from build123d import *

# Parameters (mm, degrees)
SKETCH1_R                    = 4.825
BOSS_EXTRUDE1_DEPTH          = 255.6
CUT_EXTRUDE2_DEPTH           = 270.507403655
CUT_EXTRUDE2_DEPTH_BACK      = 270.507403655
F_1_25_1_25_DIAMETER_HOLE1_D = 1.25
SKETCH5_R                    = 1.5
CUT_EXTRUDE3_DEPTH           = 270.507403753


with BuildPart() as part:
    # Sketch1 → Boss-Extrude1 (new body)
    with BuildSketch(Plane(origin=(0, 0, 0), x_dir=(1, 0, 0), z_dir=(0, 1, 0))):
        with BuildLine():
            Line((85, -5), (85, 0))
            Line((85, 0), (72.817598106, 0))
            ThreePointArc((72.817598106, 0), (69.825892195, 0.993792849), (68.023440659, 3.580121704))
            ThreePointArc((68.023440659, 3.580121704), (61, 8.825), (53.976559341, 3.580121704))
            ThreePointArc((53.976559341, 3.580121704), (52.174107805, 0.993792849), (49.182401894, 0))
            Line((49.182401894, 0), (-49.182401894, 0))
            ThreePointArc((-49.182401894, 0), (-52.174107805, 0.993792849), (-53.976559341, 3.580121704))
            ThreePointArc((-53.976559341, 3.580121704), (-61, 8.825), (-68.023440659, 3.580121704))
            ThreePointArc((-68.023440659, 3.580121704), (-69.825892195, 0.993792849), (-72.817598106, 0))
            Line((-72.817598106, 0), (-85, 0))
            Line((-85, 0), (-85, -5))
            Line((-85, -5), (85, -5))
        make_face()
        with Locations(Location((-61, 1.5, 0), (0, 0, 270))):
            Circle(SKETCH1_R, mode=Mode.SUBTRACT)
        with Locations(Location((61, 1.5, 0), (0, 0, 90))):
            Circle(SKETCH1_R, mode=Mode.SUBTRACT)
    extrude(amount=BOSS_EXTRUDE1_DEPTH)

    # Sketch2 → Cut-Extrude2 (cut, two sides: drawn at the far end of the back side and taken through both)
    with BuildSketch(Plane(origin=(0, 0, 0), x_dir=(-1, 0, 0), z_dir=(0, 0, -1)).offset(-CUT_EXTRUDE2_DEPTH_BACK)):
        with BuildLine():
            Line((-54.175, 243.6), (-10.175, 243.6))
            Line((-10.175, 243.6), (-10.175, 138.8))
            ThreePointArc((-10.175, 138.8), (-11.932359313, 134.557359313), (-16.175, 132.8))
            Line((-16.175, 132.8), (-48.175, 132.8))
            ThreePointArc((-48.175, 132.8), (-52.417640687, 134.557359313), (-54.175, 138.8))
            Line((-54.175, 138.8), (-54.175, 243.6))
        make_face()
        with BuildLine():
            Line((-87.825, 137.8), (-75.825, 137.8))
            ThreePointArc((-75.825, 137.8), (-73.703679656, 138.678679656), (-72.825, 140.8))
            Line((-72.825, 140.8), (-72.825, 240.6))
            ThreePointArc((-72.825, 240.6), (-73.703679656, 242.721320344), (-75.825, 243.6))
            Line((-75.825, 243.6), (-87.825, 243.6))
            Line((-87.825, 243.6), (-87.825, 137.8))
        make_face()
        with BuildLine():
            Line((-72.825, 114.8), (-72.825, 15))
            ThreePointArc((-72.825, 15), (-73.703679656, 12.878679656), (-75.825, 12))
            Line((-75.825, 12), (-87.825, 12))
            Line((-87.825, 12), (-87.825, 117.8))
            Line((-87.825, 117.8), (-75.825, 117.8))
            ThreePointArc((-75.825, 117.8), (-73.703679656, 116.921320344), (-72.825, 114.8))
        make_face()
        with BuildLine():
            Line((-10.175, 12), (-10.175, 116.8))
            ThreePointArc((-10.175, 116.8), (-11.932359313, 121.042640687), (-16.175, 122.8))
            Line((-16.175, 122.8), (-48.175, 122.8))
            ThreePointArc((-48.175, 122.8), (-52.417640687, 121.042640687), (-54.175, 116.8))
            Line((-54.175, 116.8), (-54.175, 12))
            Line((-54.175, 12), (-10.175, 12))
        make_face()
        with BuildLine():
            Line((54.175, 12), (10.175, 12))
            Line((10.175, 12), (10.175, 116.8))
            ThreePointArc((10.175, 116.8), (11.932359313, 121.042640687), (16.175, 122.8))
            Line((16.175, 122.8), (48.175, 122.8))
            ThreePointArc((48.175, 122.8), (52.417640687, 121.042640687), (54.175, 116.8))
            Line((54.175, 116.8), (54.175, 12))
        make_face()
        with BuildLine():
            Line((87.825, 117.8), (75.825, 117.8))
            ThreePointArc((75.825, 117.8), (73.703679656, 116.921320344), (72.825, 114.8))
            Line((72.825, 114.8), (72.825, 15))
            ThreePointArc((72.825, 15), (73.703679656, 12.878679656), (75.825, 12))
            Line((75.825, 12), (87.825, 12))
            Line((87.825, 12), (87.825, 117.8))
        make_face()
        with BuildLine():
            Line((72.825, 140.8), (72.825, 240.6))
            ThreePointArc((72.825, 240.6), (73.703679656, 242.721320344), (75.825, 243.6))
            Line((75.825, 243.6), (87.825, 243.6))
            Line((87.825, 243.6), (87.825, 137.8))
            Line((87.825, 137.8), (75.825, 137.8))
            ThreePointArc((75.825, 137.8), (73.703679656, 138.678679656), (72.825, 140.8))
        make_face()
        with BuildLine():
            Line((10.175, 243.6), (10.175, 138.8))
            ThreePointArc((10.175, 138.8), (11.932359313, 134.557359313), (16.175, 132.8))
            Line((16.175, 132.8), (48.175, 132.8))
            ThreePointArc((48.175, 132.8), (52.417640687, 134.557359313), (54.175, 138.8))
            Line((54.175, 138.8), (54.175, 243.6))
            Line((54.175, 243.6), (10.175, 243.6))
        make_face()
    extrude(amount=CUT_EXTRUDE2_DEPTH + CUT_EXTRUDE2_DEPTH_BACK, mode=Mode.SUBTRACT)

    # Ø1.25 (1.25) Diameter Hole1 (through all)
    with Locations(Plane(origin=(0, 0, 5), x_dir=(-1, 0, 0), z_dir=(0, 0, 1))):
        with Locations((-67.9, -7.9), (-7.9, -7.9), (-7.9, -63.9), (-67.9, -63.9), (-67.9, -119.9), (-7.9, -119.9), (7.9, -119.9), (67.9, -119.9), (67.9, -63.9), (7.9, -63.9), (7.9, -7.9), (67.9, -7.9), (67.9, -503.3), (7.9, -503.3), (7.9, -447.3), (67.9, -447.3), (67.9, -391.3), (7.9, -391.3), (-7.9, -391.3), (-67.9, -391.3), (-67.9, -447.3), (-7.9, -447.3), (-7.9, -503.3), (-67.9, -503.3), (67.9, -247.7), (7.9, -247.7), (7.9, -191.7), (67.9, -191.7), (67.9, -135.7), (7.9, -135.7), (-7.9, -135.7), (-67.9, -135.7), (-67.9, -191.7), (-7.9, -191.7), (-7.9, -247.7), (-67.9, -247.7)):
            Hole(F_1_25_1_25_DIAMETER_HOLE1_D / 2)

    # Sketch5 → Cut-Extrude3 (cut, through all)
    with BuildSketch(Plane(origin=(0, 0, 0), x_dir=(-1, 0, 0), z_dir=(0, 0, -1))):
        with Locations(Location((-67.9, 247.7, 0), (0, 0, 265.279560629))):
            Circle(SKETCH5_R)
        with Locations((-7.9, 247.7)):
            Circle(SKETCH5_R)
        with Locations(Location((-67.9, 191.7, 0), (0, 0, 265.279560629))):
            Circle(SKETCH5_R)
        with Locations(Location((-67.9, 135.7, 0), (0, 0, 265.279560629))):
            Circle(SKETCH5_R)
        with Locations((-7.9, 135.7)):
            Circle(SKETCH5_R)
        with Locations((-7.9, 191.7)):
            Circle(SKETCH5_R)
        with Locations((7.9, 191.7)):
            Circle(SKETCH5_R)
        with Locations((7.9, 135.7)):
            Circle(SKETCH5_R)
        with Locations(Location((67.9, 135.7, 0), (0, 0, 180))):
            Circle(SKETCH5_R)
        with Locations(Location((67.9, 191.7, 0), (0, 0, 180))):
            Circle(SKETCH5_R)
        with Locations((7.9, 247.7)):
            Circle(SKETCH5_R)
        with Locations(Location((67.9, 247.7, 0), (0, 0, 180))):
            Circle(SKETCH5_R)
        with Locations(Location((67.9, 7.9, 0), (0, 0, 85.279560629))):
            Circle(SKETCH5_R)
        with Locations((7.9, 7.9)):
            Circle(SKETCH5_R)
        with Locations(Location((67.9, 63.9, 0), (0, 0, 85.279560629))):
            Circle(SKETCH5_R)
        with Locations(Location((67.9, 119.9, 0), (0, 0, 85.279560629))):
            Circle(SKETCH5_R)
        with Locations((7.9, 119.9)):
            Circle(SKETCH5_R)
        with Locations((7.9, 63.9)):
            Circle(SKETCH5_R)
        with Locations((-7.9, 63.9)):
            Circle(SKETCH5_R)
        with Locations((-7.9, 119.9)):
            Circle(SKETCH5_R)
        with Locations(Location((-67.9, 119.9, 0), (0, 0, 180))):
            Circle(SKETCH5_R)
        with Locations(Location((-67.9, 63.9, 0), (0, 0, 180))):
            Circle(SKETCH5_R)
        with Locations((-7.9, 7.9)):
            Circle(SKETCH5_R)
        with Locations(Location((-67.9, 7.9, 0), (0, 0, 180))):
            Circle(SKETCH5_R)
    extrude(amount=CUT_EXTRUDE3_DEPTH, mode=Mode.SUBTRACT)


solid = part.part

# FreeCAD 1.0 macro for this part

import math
import FreeCAD as App
import Part
import Sketcher

V = App.Vector

doc = App.newDocument("Part")
body = doc.addObject("PartDesign::Body", "Body")

# Sketch on XZ plane
sketch1 = doc.addObject("Sketcher::SketchObject", "Sketch")
body.addObject(sketch1)
sketch1.AttachmentSupport = (doc.XZ_Plane, [""])
sketch1.MapMode = "FlatFace"
sketch1.addGeometry(Part.LineSegment(V(85, 5, 0), V(85, 0, 0)), False)
sketch1.addGeometry(Part.LineSegment(V(85, 0, 0), V(72.8, 0, 0)), False)
sketch1.addGeometry(Part.ArcOfCircle(Part.Circle(V(72.8, -5, 0), V(0, 0, 1), 5), math.radians(90), math.radians(164)), False)
sketch1.addGeometry(Part.ArcOfCircle(Part.Circle(V(61, -1.5, 0), V(0, 0, 1), 7.3), math.radians(-164), math.radians(-16)), False)
sketch1.addGeometry(Part.ArcOfCircle(Part.Circle(V(49.2, -5, 0), V(0, 0, 1), 5), math.radians(16), math.radians(90)), False)
sketch1.addGeometry(Part.LineSegment(V(49.2, 0, 0), V(-49.2, 0, 0)), False)
sketch1.addGeometry(Part.ArcOfCircle(Part.Circle(V(-49.2, -5, 0), V(0, 0, 1), 5), math.radians(90), math.radians(164)), False)
sketch1.addGeometry(Part.ArcOfCircle(Part.Circle(V(-61, -1.5, 0), V(0, 0, 1), 7.3), math.radians(-164), math.radians(-16)), False)
sketch1.addGeometry(Part.ArcOfCircle(Part.Circle(V(-72.8, -5, 0), V(0, 0, 1), 5), math.radians(16), math.radians(90)), False)
sketch1.addGeometry(Part.LineSegment(V(-72.8, 0, 0), V(-85, 0, 0)), False)
sketch1.addGeometry(Part.LineSegment(V(-85, 0, 0), V(-85, 5, 0)), False)
sketch1.addGeometry(Part.LineSegment(V(-85, 5, 0), V(85, 5, 0)), False)
sketch1.addGeometry(Part.Circle(V(-61, -1.5, 0), V(0, 0, 1), 4.8), False)
sketch1.addGeometry(Part.Circle(V(61, -1.5, 0), V(0, 0, 1), 4.8), False)
sketch1.addConstraint(Sketcher.Constraint("Coincident", 0, 2, 1, 1))
sketch1.addConstraint(Sketcher.Constraint("Tangent", 1, 2, 2, 1))
sketch1.addConstraint(Sketcher.Constraint("Tangent", 2, 2, 3, 2))
sketch1.addConstraint(Sketcher.Constraint("Tangent", 3, 1, 4, 1))
sketch1.addConstraint(Sketcher.Constraint("Tangent", 4, 2, 5, 1))
sketch1.addConstraint(Sketcher.Constraint("Tangent", 5, 2, 6, 1))
sketch1.addConstraint(Sketcher.Constraint("Tangent", 6, 2, 7, 2))
sketch1.addConstraint(Sketcher.Constraint("Tangent", 7, 1, 8, 1))
sketch1.addConstraint(Sketcher.Constraint("Tangent", 8, 2, 9, 1))
sketch1.addConstraint(Sketcher.Constraint("Coincident", 9, 2, 10, 1))
sketch1.addConstraint(Sketcher.Constraint("Coincident", 10, 2, 11, 1))
sketch1.addConstraint(Sketcher.Constraint("Coincident", 11, 2, 0, 1))
sketch1.addConstraint(Sketcher.Constraint("Vertical", 0))
sketch1.addConstraint(Sketcher.Constraint("Horizontal", 1))
sketch1.addConstraint(Sketcher.Constraint("Horizontal", 5))
sketch1.addConstraint(Sketcher.Constraint("Horizontal", 9))
sketch1.addConstraint(Sketcher.Constraint("Vertical", 10))
sketch1.addConstraint(Sketcher.Constraint("Horizontal", 11))
sketch1.addConstraint(Sketcher.Constraint("Coincident", 12, 3, 7, 3))
sketch1.addConstraint(Sketcher.Constraint("Coincident", 13, 3, 3, 3))
sketch1.addConstraint(Sketcher.Constraint("Equal", 2, 4))
sketch1.addConstraint(Sketcher.Constraint("Equal", 4, 6))
sketch1.addConstraint(Sketcher.Constraint("Equal", 3, 7))
sketch1.addConstraint(Sketcher.Constraint("Equal", 6, 8))
sketch1.addConstraint(Sketcher.Constraint("Equal", 12, 13))
sketch1.addConstraint(Sketcher.Constraint("Symmetric", 4, 2, 5, 2, -1, 1))
sketch1.addConstraint(Sketcher.Constraint("Symmetric", 1, 2, 8, 2, -1, 1))
sketch1.addConstraint(Sketcher.Constraint("Symmetric", 0, 2, 9, 2, -2))
sketch1.addConstraint(Sketcher.Constraint("Radius", 2, 5.0))
sketch1.addConstraint(Sketcher.Constraint("Diameter", 12, 9.65))
sketch1.addConstraint(Sketcher.Constraint("DistanceX", 11, 1, 11, 2, 170.0))
sketch1.addConstraint(Sketcher.Constraint("DistanceY", 0, 2, 0, 1, 5.0))
sketch1.addConstraint(Sketcher.Constraint("DistanceX", -1, 1, 3, 3, 61.0))
sketch1.addConstraint(Sketcher.Constraint("Radius", 3, 7.325))
sketch1.addConstraint(Sketcher.Constraint("DistanceY", 3, 3, -1, 1, 1.5))
pad1 = doc.addObject("PartDesign::Pad", "Pad")
body.addObject(pad1)
pad1.Profile = sketch1
pad1.Length = 255.6
pad1.Reversed = True

# Sketch on XY plane
sketch2 = doc.addObject("Sketcher::SketchObject", "Sketch001")
body.addObject(sketch2)
sketch2.AttachmentSupport = (doc.XY_Plane, [""])
sketch2.MapMode = "FlatFace"
sketch2.addGeometry(Part.LineSegment(V(10.2, 243.6, 0), V(54.2, 243.6, 0)), False)
sketch2.addGeometry(Part.LineSegment(V(54.2, 243.6, 0), V(54.2, 138.8, 0)), False)
sketch2.addGeometry(Part.ArcOfCircle(Part.Circle(V(48.2, 138.8, 0), V(0, 0, 1), 6), math.radians(-90), math.radians(0)), False)
sketch2.addGeometry(Part.LineSegment(V(48.2, 132.8, 0), V(16.2, 132.8, 0)), False)
sketch2.addGeometry(Part.ArcOfCircle(Part.Circle(V(16.2, 138.8, 0), V(0, 0, 1), 6), math.radians(180), math.radians(270)), False)
sketch2.addGeometry(Part.LineSegment(V(10.2, 138.8, 0), V(10.2, 243.6, 0)), False)
sketch2.addGeometry(Part.LineSegment(V(87.8, 137.8, 0), V(75.8, 137.8, 0)), False)
sketch2.addGeometry(Part.ArcOfCircle(Part.Circle(V(75.8, 140.8, 0), V(0, 0, 1), 3), math.radians(180), math.radians(270)), False)
sketch2.addGeometry(Part.LineSegment(V(72.8, 140.8, 0), V(72.8, 240.6, 0)), False)
sketch2.addGeometry(Part.ArcOfCircle(Part.Circle(V(75.8, 240.6, 0), V(0, 0, 1), 3), math.radians(90), math.radians(180)), False)
sketch2.addGeometry(Part.LineSegment(V(75.8, 243.6, 0), V(87.8, 243.6, 0)), False)
sketch2.addGeometry(Part.LineSegment(V(87.8, 243.6, 0), V(87.8, 137.8, 0)), False)
sketch2.addGeometry(Part.LineSegment(V(72.8, 15, 0), V(72.8, 114.8, 0)), False)
sketch2.addGeometry(Part.ArcOfCircle(Part.Circle(V(75.8, 114.8, 0), V(0, 0, 1), 3), math.radians(90), math.radians(180)), False)
sketch2.addGeometry(Part.LineSegment(V(75.8, 117.8, 0), V(87.8, 117.8, 0)), False)
sketch2.addGeometry(Part.LineSegment(V(87.8, 117.8, 0), V(87.8, 12, 0)), False)
sketch2.addGeometry(Part.LineSegment(V(87.8, 12, 0), V(75.8, 12, 0)), False)
sketch2.addGeometry(Part.ArcOfCircle(Part.Circle(V(75.8, 15, 0), V(0, 0, 1), 3), math.radians(180), math.radians(270)), False)
sketch2.addGeometry(Part.LineSegment(V(10.2, 12, 0), V(10.2, 116.8, 0)), False)
sketch2.addGeometry(Part.ArcOfCircle(Part.Circle(V(16.2, 116.8, 0), V(0, 0, 1), 6), math.radians(90), math.radians(180)), False)
sketch2.addGeometry(Part.LineSegment(V(16.2, 122.8, 0), V(48.2, 122.8, 0)), False)
sketch2.addGeometry(Part.ArcOfCircle(Part.Circle(V(48.2, 116.8, 0), V(0, 0, 1), 6), math.radians(0), math.radians(90)), False)
sketch2.addGeometry(Part.LineSegment(V(54.2, 116.8, 0), V(54.2, 12, 0)), False)
sketch2.addGeometry(Part.LineSegment(V(54.2, 12, 0), V(10.2, 12, 0)), False)
sketch2.addGeometry(Part.LineSegment(V(-10.2, 12, 0), V(-54.2, 12, 0)), False)
sketch2.addGeometry(Part.LineSegment(V(-54.2, 12, 0), V(-54.2, 116.8, 0)), False)
sketch2.addGeometry(Part.ArcOfCircle(Part.Circle(V(-48.2, 116.8, 0), V(0, 0, 1), 6), math.radians(90), math.radians(180)), False)
sketch2.addGeometry(Part.LineSegment(V(-48.2, 122.8, 0), V(-16.2, 122.8, 0)), False)
sketch2.addGeometry(Part.ArcOfCircle(Part.Circle(V(-16.2, 116.8, 0), V(0, 0, 1), 6), math.radians(0), math.radians(90)), False)
sketch2.addGeometry(Part.LineSegment(V(-10.2, 116.8, 0), V(-10.2, 12, 0)), False)
sketch2.addGeometry(Part.LineSegment(V(-87.8, 117.8, 0), V(-75.8, 117.8, 0)), False)
sketch2.addGeometry(Part.ArcOfCircle(Part.Circle(V(-75.8, 114.8, 0), V(0, 0, 1), 3), math.radians(0), math.radians(90)), False)
sketch2.addGeometry(Part.LineSegment(V(-72.8, 114.8, 0), V(-72.8, 15, 0)), False)
sketch2.addGeometry(Part.ArcOfCircle(Part.Circle(V(-75.8, 15, 0), V(0, 0, 1), 3), math.radians(-90), math.radians(0)), False)
sketch2.addGeometry(Part.LineSegment(V(-75.8, 12, 0), V(-87.8, 12, 0)), False)
sketch2.addGeometry(Part.LineSegment(V(-87.8, 12, 0), V(-87.8, 117.8, 0)), False)
sketch2.addGeometry(Part.LineSegment(V(-72.8, 240.6, 0), V(-72.8, 140.8, 0)), False)
sketch2.addGeometry(Part.ArcOfCircle(Part.Circle(V(-75.8, 140.8, 0), V(0, 0, 1), 3), math.radians(-90), math.radians(0)), False)
sketch2.addGeometry(Part.LineSegment(V(-75.8, 137.8, 0), V(-87.8, 137.8, 0)), False)
sketch2.addGeometry(Part.LineSegment(V(-87.8, 137.8, 0), V(-87.8, 243.6, 0)), False)
sketch2.addGeometry(Part.LineSegment(V(-87.8, 243.6, 0), V(-75.8, 243.6, 0)), False)
sketch2.addGeometry(Part.ArcOfCircle(Part.Circle(V(-75.8, 240.6, 0), V(0, 0, 1), 3), math.radians(0), math.radians(90)), False)
sketch2.addGeometry(Part.LineSegment(V(-10.2, 243.6, 0), V(-10.2, 138.8, 0)), False)
sketch2.addGeometry(Part.ArcOfCircle(Part.Circle(V(-16.2, 138.8, 0), V(0, 0, 1), 6), math.radians(-90), math.radians(0)), False)
sketch2.addGeometry(Part.LineSegment(V(-16.2, 132.8, 0), V(-48.2, 132.8, 0)), False)
sketch2.addGeometry(Part.ArcOfCircle(Part.Circle(V(-48.2, 138.8, 0), V(0, 0, 1), 6), math.radians(180), math.radians(270)), False)
sketch2.addGeometry(Part.LineSegment(V(-54.2, 138.8, 0), V(-54.2, 243.6, 0)), False)
sketch2.addGeometry(Part.LineSegment(V(-54.2, 243.6, 0), V(-10.2, 243.6, 0)), False)
sketch2.addConstraint(Sketcher.Constraint("Coincident", 0, 2, 1, 1))
sketch2.addConstraint(Sketcher.Constraint("Tangent", 1, 2, 2, 2))
sketch2.addConstraint(Sketcher.Constraint("Tangent", 2, 1, 3, 1))
sketch2.addConstraint(Sketcher.Constraint("Tangent", 3, 2, 4, 2))
sketch2.addConstraint(Sketcher.Constraint("Tangent", 4, 1, 5, 1))
sketch2.addConstraint(Sketcher.Constraint("Coincident", 5, 2, 0, 1))
sketch2.addConstraint(Sketcher.Constraint("Tangent", 6, 2, 7, 2))
sketch2.addConstraint(Sketcher.Constraint("Tangent", 7, 1, 8, 1))
sketch2.addConstraint(Sketcher.Constraint("Tangent", 8, 2, 9, 2))
sketch2.addConstraint(Sketcher.Constraint("Tangent", 9, 1, 10, 1))
sketch2.addConstraint(Sketcher.Constraint("Coincident", 10, 2, 11, 1))
sketch2.addConstraint(Sketcher.Constraint("Coincident", 11, 2, 6, 1))
sketch2.addConstraint(Sketcher.Constraint("Tangent", 12, 2, 13, 2))
sketch2.addConstraint(Sketcher.Constraint("Tangent", 13, 1, 14, 1))
sketch2.addConstraint(Sketcher.Constraint("Coincident", 14, 2, 15, 1))
sketch2.addConstraint(Sketcher.Constraint("Coincident", 15, 2, 16, 1))
sketch2.addConstraint(Sketcher.Constraint("Tangent", 16, 2, 17, 2))
sketch2.addConstraint(Sketcher.Constraint("Tangent", 17, 1, 12, 1))
sketch2.addConstraint(Sketcher.Constraint("Tangent", 18, 2, 19, 2))
sketch2.addConstraint(Sketcher.Constraint("Tangent", 19, 1, 20, 1))
sketch2.addConstraint(Sketcher.Constraint("Tangent", 20, 2, 21, 2))
sketch2.addConstraint(Sketcher.Constraint("Tangent", 21, 1, 22, 1))
sketch2.addConstraint(Sketcher.Constraint("Coincident", 22, 2, 23, 1))
sketch2.addConstraint(Sketcher.Constraint("Coincident", 23, 2, 18, 1))
sketch2.addConstraint(Sketcher.Constraint("Coincident", 24, 2, 25, 1))
sketch2.addConstraint(Sketcher.Constraint("Tangent", 25, 2, 26, 2))
sketch2.addConstraint(Sketcher.Constraint("Tangent", 26, 1, 27, 1))
sketch2.addConstraint(Sketcher.Constraint("Tangent", 27, 2, 28, 2))
sketch2.addConstraint(Sketcher.Constraint("Tangent", 28, 1, 29, 1))
sketch2.addConstraint(Sketcher.Constraint("Coincident", 29, 2, 24, 1))
sketch2.addConstraint(Sketcher.Constraint("Tangent", 30, 2, 31, 2))
sketch2.addConstraint(Sketcher.Constraint("Tangent", 31, 1, 32, 1))
sketch2.addConstraint(Sketcher.Constraint("Tangent", 32, 2, 33, 2))
sketch2.addConstraint(Sketcher.Constraint("Tangent", 33, 1, 34, 1))
sketch2.addConstraint(Sketcher.Constraint("Coincident", 34, 2, 35, 1))
sketch2.addConstraint(Sketcher.Constraint("Coincident", 35, 2, 30, 1))
sketch2.addConstraint(Sketcher.Constraint("Tangent", 36, 2, 37, 2))
sketch2.addConstraint(Sketcher.Constraint("Tangent", 37, 1, 38, 1))
sketch2.addConstraint(Sketcher.Constraint("Coincident", 38, 2, 39, 1))
sketch2.addConstraint(Sketcher.Constraint("Coincident", 39, 2, 40, 1))
sketch2.addConstraint(Sketcher.Constraint("Tangent", 40, 2, 41, 2))
sketch2.addConstraint(Sketcher.Constraint("Tangent", 41, 1, 36, 1))
sketch2.addConstraint(Sketcher.Constraint("Tangent", 42, 2, 43, 2))
sketch2.addConstraint(Sketcher.Constraint("Tangent", 43, 1, 44, 1))
sketch2.addConstraint(Sketcher.Constraint("Tangent", 44, 2, 45, 2))
sketch2.addConstraint(Sketcher.Constraint("Tangent", 45, 1, 46, 1))
sketch2.addConstraint(Sketcher.Constraint("Coincident", 46, 2, 47, 1))
sketch2.addConstraint(Sketcher.Constraint("Coincident", 47, 2, 42, 1))
sketch2.addConstraint(Sketcher.Constraint("Horizontal", 0))
sketch2.addConstraint(Sketcher.Constraint("Vertical", 1))
sketch2.addConstraint(Sketcher.Constraint("Horizontal", 3))
sketch2.addConstraint(Sketcher.Constraint("Vertical", 5))
sketch2.addConstraint(Sketcher.Constraint("Horizontal", 6))
sketch2.addConstraint(Sketcher.Constraint("Vertical", 8))
sketch2.addConstraint(Sketcher.Constraint("Horizontal", 10))
sketch2.addConstraint(Sketcher.Constraint("Vertical", 11))
sketch2.addConstraint(Sketcher.Constraint("Vertical", 12))
sketch2.addConstraint(Sketcher.Constraint("Horizontal", 14))
sketch2.addConstraint(Sketcher.Constraint("Vertical", 15))
sketch2.addConstraint(Sketcher.Constraint("Horizontal", 16))
sketch2.addConstraint(Sketcher.Constraint("Vertical", 18))
sketch2.addConstraint(Sketcher.Constraint("Horizontal", 20))
sketch2.addConstraint(Sketcher.Constraint("Vertical", 22))
sketch2.addConstraint(Sketcher.Constraint("Horizontal", 23))
sketch2.addConstraint(Sketcher.Constraint("Horizontal", 24))
sketch2.addConstraint(Sketcher.Constraint("Vertical", 25))
sketch2.addConstraint(Sketcher.Constraint("Horizontal", 27))
sketch2.addConstraint(Sketcher.Constraint("Vertical", 29))
sketch2.addConstraint(Sketcher.Constraint("Horizontal", 30))
sketch2.addConstraint(Sketcher.Constraint("Vertical", 32))
sketch2.addConstraint(Sketcher.Constraint("Horizontal", 34))
sketch2.addConstraint(Sketcher.Constraint("Vertical", 35))
sketch2.addConstraint(Sketcher.Constraint("Vertical", 36))
sketch2.addConstraint(Sketcher.Constraint("Horizontal", 38))
sketch2.addConstraint(Sketcher.Constraint("Vertical", 39))
sketch2.addConstraint(Sketcher.Constraint("Horizontal", 40))
sketch2.addConstraint(Sketcher.Constraint("Vertical", 42))
sketch2.addConstraint(Sketcher.Constraint("Horizontal", 44))
sketch2.addConstraint(Sketcher.Constraint("Vertical", 46))
sketch2.addConstraint(Sketcher.Constraint("Horizontal", 47))
sketch2.addConstraint(Sketcher.Constraint("Equal", 2, 4))
sketch2.addConstraint(Sketcher.Constraint("Equal", 7, 9))
sketch2.addConstraint(Sketcher.Constraint("Equal", 9, 13))
sketch2.addConstraint(Sketcher.Constraint("Equal", 13, 17))
sketch2.addConstraint(Sketcher.Constraint("Equal", 4, 19))
sketch2.addConstraint(Sketcher.Constraint("Equal", 19, 21))
sketch2.addConstraint(Sketcher.Constraint("Equal", 21, 26))
sketch2.addConstraint(Sketcher.Constraint("Equal", 26, 28))
sketch2.addConstraint(Sketcher.Constraint("Equal", 17, 31))
sketch2.addConstraint(Sketcher.Constraint("Equal", 31, 33))
sketch2.addConstraint(Sketcher.Constraint("Equal", 33, 37))
sketch2.addConstraint(Sketcher.Constraint("Equal", 37, 41))
sketch2.addConstraint(Sketcher.Constraint("Equal", 28, 43))
sketch2.addConstraint(Sketcher.Constraint("Equal", 43, 45))
sketch2.addConstraint(Sketcher.Constraint("Symmetric", 21, 3, 26, 3, -2))
sketch2.addConstraint(Sketcher.Constraint("Symmetric", 13, 3, 31, 3, -2))
sketch2.addConstraint(Sketcher.Constraint("Symmetric", 7, 3, 37, 3, -2))
sketch2.addConstraint(Sketcher.Constraint("Symmetric", 4, 3, 43, 3, -2))
sketch2.addConstraint(Sketcher.Constraint("Symmetric", 23, 2, 29, 2, -2))
sketch2.addConstraint(Sketcher.Constraint("Symmetric", 15, 2, 34, 2, -2))
sketch2.addConstraint(Sketcher.Constraint("Symmetric", 10, 2, 39, 2, -2))
sketch2.addConstraint(Sketcher.Constraint("Symmetric", 0, 2, 46, 2, -2))
sketch2.addConstraint(Sketcher.Constraint("Horizontal", 5, 2, 9, 1))
sketch2.addConstraint(Sketcher.Constraint("Horizontal", 16, 2, 22, 2))
sketch2.addConstraint(Sketcher.Constraint("Vertical", 9, 3, 13, 3))
sketch2.addConstraint(Sketcher.Constraint("Vertical", 4, 3, 19, 3))
sketch2.addConstraint(Sketcher.Constraint("Vertical", 2, 3, 21, 3))
sketch2.addConstraint(Sketcher.Constraint("Vertical", 11, 2, 14, 2))
sketch2.addConstraint(Sketcher.Constraint("Equal", 8, 12))
sketch2.addConstraint(Sketcher.Constraint("Equal", 5, 18))
sketch2.addConstraint(Sketcher.Constraint("Radius", 2, 6.0))
sketch2.addConstraint(Sketcher.Constraint("Radius", 7, 3.0))
sketch2.addConstraint(Sketcher.Constraint("DistanceX", 0, 1, 0, 2, 44.0))
sketch2.addConstraint(Sketcher.Constraint("DistanceX", 6, 2, 6, 1, 12.0))
sketch2.addConstraint(Sketcher.Constraint("DistanceY", 1, 2, 1, 1, 104.8))
sketch2.addConstraint(Sketcher.Constraint("DistanceY", 8, 1, 8, 2, 99.8))
sketch2.addConstraint(Sketcher.Constraint("DistanceY", -1, 1, 17, 3, 15.0))
sketch2.addConstraint(Sketcher.Constraint("DistanceY", -1, 1, 2, 3, 138.8))
sketch2.addConstraint(Sketcher.Constraint("DistanceX", -1, 1, 2, 3, 48.175))
sketch2.addConstraint(Sketcher.Constraint("DistanceX", -1, 1, 7, 3, 75.825))
pocket1 = doc.addObject("PartDesign::Pocket", "Pocket")
body.addObject(pocket1)
pocket1.Profile = sketch2
pocket1.Type = "ThroughAll"
pocket1.Midplane = True

# Sketch on XY plane
sketch3 = doc.addObject("Sketcher::SketchObject", "Sketch002")
body.addObject(sketch3)
sketch3.AttachmentSupport = (doc.XY_Plane, [""])
sketch3.MapMode = "FlatFace"
sketch3.AttachmentOffset = App.Placement(V(0, 0, 5), App.Rotation())
sketch3.addGeometry(Part.Circle(V(67.9, 7.9, 0), V(0, 0, 1), 0.6), False)
sketch3.addGeometry(Part.Circle(V(7.9, 7.9, 0), V(0, 0, 1), 0.6), False)
sketch3.addGeometry(Part.Circle(V(7.9, 63.9, 0), V(0, 0, 1), 0.6), False)
sketch3.addGeometry(Part.Circle(V(67.9, 63.9, 0), V(0, 0, 1), 0.6), False)
sketch3.addGeometry(Part.Circle(V(67.9, 119.9, 0), V(0, 0, 1), 0.6), False)
sketch3.addGeometry(Part.Circle(V(7.9, 119.9, 0), V(0, 0, 1), 0.6), False)
sketch3.addGeometry(Part.Circle(V(-7.9, 119.9, 0), V(0, 0, 1), 0.6), False)
sketch3.addGeometry(Part.Circle(V(-67.9, 119.9, 0), V(0, 0, 1), 0.6), False)
sketch3.addGeometry(Part.Circle(V(-67.9, 63.9, 0), V(0, 0, 1), 0.6), False)
sketch3.addGeometry(Part.Circle(V(-7.9, 63.9, 0), V(0, 0, 1), 0.6), False)
sketch3.addGeometry(Part.Circle(V(-7.9, 7.9, 0), V(0, 0, 1), 0.6), False)
sketch3.addGeometry(Part.Circle(V(-67.9, 7.9, 0), V(0, 0, 1), 0.6), False)
sketch3.addGeometry(Part.Circle(V(-67.9, 503.3, 0), V(0, 0, 1), 0.6), False)
sketch3.addGeometry(Part.Circle(V(-7.9, 503.3, 0), V(0, 0, 1), 0.6), False)
sketch3.addGeometry(Part.Circle(V(-7.9, 447.3, 0), V(0, 0, 1), 0.6), False)
sketch3.addGeometry(Part.Circle(V(-67.9, 447.3, 0), V(0, 0, 1), 0.6), False)
sketch3.addGeometry(Part.Circle(V(-67.9, 391.3, 0), V(0, 0, 1), 0.6), False)
sketch3.addGeometry(Part.Circle(V(-7.9, 391.3, 0), V(0, 0, 1), 0.6), False)
sketch3.addGeometry(Part.Circle(V(7.9, 391.3, 0), V(0, 0, 1), 0.6), False)
sketch3.addGeometry(Part.Circle(V(67.9, 391.3, 0), V(0, 0, 1), 0.6), False)
sketch3.addGeometry(Part.Circle(V(67.9, 447.3, 0), V(0, 0, 1), 0.6), False)
sketch3.addGeometry(Part.Circle(V(7.9, 447.3, 0), V(0, 0, 1), 0.6), False)
sketch3.addGeometry(Part.Circle(V(7.9, 503.3, 0), V(0, 0, 1), 0.6), False)
sketch3.addGeometry(Part.Circle(V(67.9, 503.3, 0), V(0, 0, 1), 0.6), False)
sketch3.addGeometry(Part.Circle(V(-67.9, 247.7, 0), V(0, 0, 1), 0.6), False)
sketch3.addGeometry(Part.Circle(V(-7.9, 247.7, 0), V(0, 0, 1), 0.6), False)
sketch3.addGeometry(Part.Circle(V(-7.9, 191.7, 0), V(0, 0, 1), 0.6), False)
sketch3.addGeometry(Part.Circle(V(-67.9, 191.7, 0), V(0, 0, 1), 0.6), False)
sketch3.addGeometry(Part.Circle(V(-67.9, 135.7, 0), V(0, 0, 1), 0.6), False)
sketch3.addGeometry(Part.Circle(V(-7.9, 135.7, 0), V(0, 0, 1), 0.6), False)
sketch3.addGeometry(Part.Circle(V(7.9, 135.7, 0), V(0, 0, 1), 0.6), False)
sketch3.addGeometry(Part.Circle(V(67.9, 135.7, 0), V(0, 0, 1), 0.6), False)
sketch3.addGeometry(Part.Circle(V(67.9, 191.7, 0), V(0, 0, 1), 0.6), False)
sketch3.addGeometry(Part.Circle(V(7.9, 191.7, 0), V(0, 0, 1), 0.6), False)
sketch3.addGeometry(Part.Circle(V(7.9, 247.7, 0), V(0, 0, 1), 0.6), False)
sketch3.addGeometry(Part.Circle(V(67.9, 247.7, 0), V(0, 0, 1), 0.6), False)
sketch3.addConstraint(Sketcher.Constraint("Equal", 0, 1))
sketch3.addConstraint(Sketcher.Constraint("Equal", 1, 2))
sketch3.addConstraint(Sketcher.Constraint("Equal", 2, 3))
sketch3.addConstraint(Sketcher.Constraint("Equal", 3, 4))
sketch3.addConstraint(Sketcher.Constraint("Equal", 4, 5))
sketch3.addConstraint(Sketcher.Constraint("Equal", 5, 6))
sketch3.addConstraint(Sketcher.Constraint("Equal", 6, 7))
sketch3.addConstraint(Sketcher.Constraint("Equal", 7, 8))
sketch3.addConstraint(Sketcher.Constraint("Equal", 8, 9))
sketch3.addConstraint(Sketcher.Constraint("Equal", 9, 10))
sketch3.addConstraint(Sketcher.Constraint("Equal", 10, 11))
sketch3.addConstraint(Sketcher.Constraint("Equal", 11, 12))
sketch3.addConstraint(Sketcher.Constraint("Equal", 12, 13))
sketch3.addConstraint(Sketcher.Constraint("Equal", 13, 14))
sketch3.addConstraint(Sketcher.Constraint("Equal", 14, 15))
sketch3.addConstraint(Sketcher.Constraint("Equal", 15, 16))
sketch3.addConstraint(Sketcher.Constraint("Equal", 16, 17))
sketch3.addConstraint(Sketcher.Constraint("Equal", 17, 18))
sketch3.addConstraint(Sketcher.Constraint("Equal", 18, 19))
sketch3.addConstraint(Sketcher.Constraint("Equal", 19, 20))
sketch3.addConstraint(Sketcher.Constraint("Equal", 20, 21))
sketch3.addConstraint(Sketcher.Constraint("Equal", 21, 22))
sketch3.addConstraint(Sketcher.Constraint("Equal", 22, 23))
sketch3.addConstraint(Sketcher.Constraint("Equal", 23, 24))
sketch3.addConstraint(Sketcher.Constraint("Equal", 24, 25))
sketch3.addConstraint(Sketcher.Constraint("Equal", 25, 26))
sketch3.addConstraint(Sketcher.Constraint("Equal", 26, 27))
sketch3.addConstraint(Sketcher.Constraint("Equal", 27, 28))
sketch3.addConstraint(Sketcher.Constraint("Equal", 28, 29))
sketch3.addConstraint(Sketcher.Constraint("Equal", 29, 30))
sketch3.addConstraint(Sketcher.Constraint("Equal", 30, 31))
sketch3.addConstraint(Sketcher.Constraint("Equal", 31, 32))
sketch3.addConstraint(Sketcher.Constraint("Equal", 32, 33))
sketch3.addConstraint(Sketcher.Constraint("Equal", 33, 34))
sketch3.addConstraint(Sketcher.Constraint("Equal", 34, 35))
sketch3.addConstraint(Sketcher.Constraint("Symmetric", 5, 3, 6, 3, -2))
sketch3.addConstraint(Sketcher.Constraint("Symmetric", 4, 3, 7, 3, -2))
sketch3.addConstraint(Sketcher.Constraint("Symmetric", 3, 3, 8, 3, -2))
sketch3.addConstraint(Sketcher.Constraint("Symmetric", 2, 3, 9, 3, -2))
sketch3.addConstraint(Sketcher.Constraint("Symmetric", 1, 3, 10, 3, -2))
sketch3.addConstraint(Sketcher.Constraint("Symmetric", 0, 3, 11, 3, -2))
sketch3.addConstraint(Sketcher.Constraint("Symmetric", 17, 3, 18, 3, -2))
sketch3.addConstraint(Sketcher.Constraint("Symmetric", 16, 3, 19, 3, -2))
sketch3.addConstraint(Sketcher.Constraint("Symmetric", 15, 3, 20, 3, -2))
sketch3.addConstraint(Sketcher.Constraint("Symmetric", 14, 3, 21, 3, -2))
sketch3.addConstraint(Sketcher.Constraint("Symmetric", 13, 3, 22, 3, -2))
sketch3.addConstraint(Sketcher.Constraint("Symmetric", 12, 3, 23, 3, -2))
sketch3.addConstraint(Sketcher.Constraint("Symmetric", 29, 3, 30, 3, -2))
sketch3.addConstraint(Sketcher.Constraint("Symmetric", 28, 3, 31, 3, -2))
sketch3.addConstraint(Sketcher.Constraint("Symmetric", 27, 3, 32, 3, -2))
sketch3.addConstraint(Sketcher.Constraint("Symmetric", 26, 3, 33, 3, -2))
sketch3.addConstraint(Sketcher.Constraint("Symmetric", 25, 3, 34, 3, -2))
sketch3.addConstraint(Sketcher.Constraint("Symmetric", 24, 3, 35, 3, -2))
sketch3.addConstraint(Sketcher.Constraint("Horizontal", 0, 3, 1, 3))
sketch3.addConstraint(Sketcher.Constraint("Horizontal", 2, 3, 3, 3))
sketch3.addConstraint(Sketcher.Constraint("Horizontal", 4, 3, 5, 3))
sketch3.addConstraint(Sketcher.Constraint("Horizontal", 12, 3, 13, 3))
sketch3.addConstraint(Sketcher.Constraint("Horizontal", 14, 3, 15, 3))
sketch3.addConstraint(Sketcher.Constraint("Horizontal", 16, 3, 17, 3))
sketch3.addConstraint(Sketcher.Constraint("Horizontal", 24, 3, 25, 3))
sketch3.addConstraint(Sketcher.Constraint("Horizontal", 26, 3, 27, 3))
sketch3.addConstraint(Sketcher.Constraint("Horizontal", 28, 3, 29, 3))
sketch3.addConstraint(Sketcher.Constraint("Vertical", 1, 3, 2, 3))
sketch3.addConstraint(Sketcher.Constraint("Vertical", 0, 3, 3, 3))
sketch3.addConstraint(Sketcher.Constraint("Vertical", 3, 3, 4, 3))
sketch3.addConstraint(Sketcher.Constraint("Vertical", 2, 3, 5, 3))
sketch3.addConstraint(Sketcher.Constraint("Vertical", 11, 3, 12, 3))
sketch3.addConstraint(Sketcher.Constraint("Vertical", 10, 3, 13, 3))
sketch3.addConstraint(Sketcher.Constraint("Vertical", 13, 3, 14, 3))
sketch3.addConstraint(Sketcher.Constraint("Vertical", 12, 3, 15, 3))
sketch3.addConstraint(Sketcher.Constraint("Vertical", 15, 3, 16, 3))
sketch3.addConstraint(Sketcher.Constraint("Vertical", 14, 3, 17, 3))
sketch3.addConstraint(Sketcher.Constraint("Vertical", 16, 3, 24, 3))
sketch3.addConstraint(Sketcher.Constraint("Vertical", 17, 3, 25, 3))
sketch3.addConstraint(Sketcher.Constraint("Vertical", 25, 3, 26, 3))
sketch3.addConstraint(Sketcher.Constraint("Vertical", 24, 3, 27, 3))
sketch3.addConstraint(Sketcher.Constraint("Vertical", 27, 3, 28, 3))
sketch3.addConstraint(Sketcher.Constraint("Vertical", 26, 3, 29, 3))
sketch3.addConstraint(Sketcher.Constraint("Diameter", 0, 1.25))
sketch3.addConstraint(Sketcher.Constraint("DistanceX", 1, 3, 0, 3, 60.0))
sketch3.addConstraint(Sketcher.Constraint("DistanceY", 1, 3, 2, 3, 56.0))
sketch3.addConstraint(Sketcher.Constraint("DistanceY", 3, 3, 4, 3, 56.0))
sketch3.addConstraint(Sketcher.Constraint("DistanceY", 14, 3, 13, 3, 56.0))
sketch3.addConstraint(Sketcher.Constraint("DistanceY", 16, 3, 15, 3, 56.0))
sketch3.addConstraint(Sketcher.Constraint("DistanceY", 26, 3, 25, 3, 56.0))
sketch3.addConstraint(Sketcher.Constraint("DistanceY", 28, 3, 27, 3, 56.0))
sketch3.addConstraint(Sketcher.Constraint("DistanceX", -1, 1, 0, 3, 67.9))
sketch3.addConstraint(Sketcher.Constraint("DistanceY", -1, 1, 0, 3, 7.9))
sketch3.addConstraint(Sketcher.Constraint("DistanceY", -1, 1, 12, 3, 503.3))
sketch3.addConstraint(Sketcher.Constraint("DistanceY", -1, 1, 24, 3, 247.7))
doc.recompute()
hole = doc.addObject("PartDesign::Hole", "Hole")
body.addObject(hole)
hole.Profile = sketch3
hole.ThreadType = "None"
hole.Diameter = 1.25
hole.DepthType = "ThroughAll"

# Sketch on XY plane
sketch4 = doc.addObject("Sketcher::SketchObject", "Sketch003")
body.addObject(sketch4)
sketch4.AttachmentSupport = (doc.XY_Plane, [""])
sketch4.MapMode = "FlatFace"
sketch4.addGeometry(Part.Circle(V(67.9, 247.7, 0), V(0, 0, 1), 1.5), False)
sketch4.addGeometry(Part.Circle(V(7.9, 247.7, 0), V(0, 0, 1), 1.5), False)
sketch4.addGeometry(Part.Circle(V(67.9, 191.7, 0), V(0, 0, 1), 1.5), False)
sketch4.addGeometry(Part.Circle(V(67.9, 135.7, 0), V(0, 0, 1), 1.5), False)
sketch4.addGeometry(Part.Circle(V(7.9, 135.7, 0), V(0, 0, 1), 1.5), False)
sketch4.addGeometry(Part.Circle(V(7.9, 191.7, 0), V(0, 0, 1), 1.5), False)
sketch4.addGeometry(Part.Circle(V(-7.9, 191.7, 0), V(0, 0, 1), 1.5), False)
sketch4.addGeometry(Part.Circle(V(-7.9, 135.7, 0), V(0, 0, 1), 1.5), False)
sketch4.addGeometry(Part.Circle(V(-67.9, 135.7, 0), V(0, 0, 1), 1.5), False)
sketch4.addGeometry(Part.Circle(V(-67.9, 191.7, 0), V(0, 0, 1), 1.5), False)
sketch4.addGeometry(Part.Circle(V(-7.9, 247.7, 0), V(0, 0, 1), 1.5), False)
sketch4.addGeometry(Part.Circle(V(-67.9, 247.7, 0), V(0, 0, 1), 1.5), False)
sketch4.addGeometry(Part.Circle(V(-67.9, 7.9, 0), V(0, 0, 1), 1.5), False)
sketch4.addGeometry(Part.Circle(V(-7.9, 7.9, 0), V(0, 0, 1), 1.5), False)
sketch4.addGeometry(Part.Circle(V(-67.9, 63.9, 0), V(0, 0, 1), 1.5), False)
sketch4.addGeometry(Part.Circle(V(-67.9, 119.9, 0), V(0, 0, 1), 1.5), False)
sketch4.addGeometry(Part.Circle(V(-7.9, 119.9, 0), V(0, 0, 1), 1.5), False)
sketch4.addGeometry(Part.Circle(V(-7.9, 63.9, 0), V(0, 0, 1), 1.5), False)
sketch4.addGeometry(Part.Circle(V(7.9, 63.9, 0), V(0, 0, 1), 1.5), False)
sketch4.addGeometry(Part.Circle(V(7.9, 119.9, 0), V(0, 0, 1), 1.5), False)
sketch4.addGeometry(Part.Circle(V(67.9, 119.9, 0), V(0, 0, 1), 1.5), False)
sketch4.addGeometry(Part.Circle(V(67.9, 63.9, 0), V(0, 0, 1), 1.5), False)
sketch4.addGeometry(Part.Circle(V(7.9, 7.9, 0), V(0, 0, 1), 1.5), False)
sketch4.addGeometry(Part.Circle(V(67.9, 7.9, 0), V(0, 0, 1), 1.5), False)
sketch4.addConstraint(Sketcher.Constraint("Equal", 0, 1))
sketch4.addConstraint(Sketcher.Constraint("Equal", 1, 2))
sketch4.addConstraint(Sketcher.Constraint("Equal", 2, 3))
sketch4.addConstraint(Sketcher.Constraint("Equal", 3, 4))
sketch4.addConstraint(Sketcher.Constraint("Equal", 4, 5))
sketch4.addConstraint(Sketcher.Constraint("Equal", 5, 6))
sketch4.addConstraint(Sketcher.Constraint("Equal", 6, 7))
sketch4.addConstraint(Sketcher.Constraint("Equal", 7, 8))
sketch4.addConstraint(Sketcher.Constraint("Equal", 8, 9))
sketch4.addConstraint(Sketcher.Constraint("Equal", 9, 10))
sketch4.addConstraint(Sketcher.Constraint("Equal", 10, 11))
sketch4.addConstraint(Sketcher.Constraint("Equal", 11, 12))
sketch4.addConstraint(Sketcher.Constraint("Equal", 12, 13))
sketch4.addConstraint(Sketcher.Constraint("Equal", 13, 14))
sketch4.addConstraint(Sketcher.Constraint("Equal", 14, 15))
sketch4.addConstraint(Sketcher.Constraint("Equal", 15, 16))
sketch4.addConstraint(Sketcher.Constraint("Equal", 16, 17))
sketch4.addConstraint(Sketcher.Constraint("Equal", 17, 18))
sketch4.addConstraint(Sketcher.Constraint("Equal", 18, 19))
sketch4.addConstraint(Sketcher.Constraint("Equal", 19, 20))
sketch4.addConstraint(Sketcher.Constraint("Equal", 20, 21))
sketch4.addConstraint(Sketcher.Constraint("Equal", 21, 22))
sketch4.addConstraint(Sketcher.Constraint("Equal", 22, 23))
sketch4.addConstraint(Sketcher.Constraint("Symmetric", 5, 3, 6, 3, -2))
sketch4.addConstraint(Sketcher.Constraint("Symmetric", 4, 3, 7, 3, -2))
sketch4.addConstraint(Sketcher.Constraint("Symmetric", 3, 3, 8, 3, -2))
sketch4.addConstraint(Sketcher.Constraint("Symmetric", 2, 3, 9, 3, -2))
sketch4.addConstraint(Sketcher.Constraint("Symmetric", 1, 3, 10, 3, -2))
sketch4.addConstraint(Sketcher.Constraint("Symmetric", 0, 3, 11, 3, -2))
sketch4.addConstraint(Sketcher.Constraint("Symmetric", 17, 3, 18, 3, -2))
sketch4.addConstraint(Sketcher.Constraint("Symmetric", 16, 3, 19, 3, -2))
sketch4.addConstraint(Sketcher.Constraint("Symmetric", 15, 3, 20, 3, -2))
sketch4.addConstraint(Sketcher.Constraint("Symmetric", 14, 3, 21, 3, -2))
sketch4.addConstraint(Sketcher.Constraint("Symmetric", 13, 3, 22, 3, -2))
sketch4.addConstraint(Sketcher.Constraint("Symmetric", 12, 3, 23, 3, -2))
sketch4.addConstraint(Sketcher.Constraint("Horizontal", 0, 3, 1, 3))
sketch4.addConstraint(Sketcher.Constraint("Horizontal", 3, 3, 4, 3))
sketch4.addConstraint(Sketcher.Constraint("Horizontal", 2, 3, 5, 3))
sketch4.addConstraint(Sketcher.Constraint("Horizontal", 12, 3, 13, 3))
sketch4.addConstraint(Sketcher.Constraint("Horizontal", 15, 3, 16, 3))
sketch4.addConstraint(Sketcher.Constraint("Horizontal", 14, 3, 17, 3))
sketch4.addConstraint(Sketcher.Constraint("Vertical", 0, 3, 2, 3))
sketch4.addConstraint(Sketcher.Constraint("Vertical", 2, 3, 3, 3))
sketch4.addConstraint(Sketcher.Constraint("Vertical", 1, 3, 4, 3))
sketch4.addConstraint(Sketcher.Constraint("Vertical", 4, 3, 5, 3))
sketch4.addConstraint(Sketcher.Constraint("Vertical", 11, 3, 12, 3))
sketch4.addConstraint(Sketcher.Constraint("Vertical", 10, 3, 13, 3))
sketch4.addConstraint(Sketcher.Constraint("Vertical", 12, 3, 14, 3))
sketch4.addConstraint(Sketcher.Constraint("Vertical", 14, 3, 15, 3))
sketch4.addConstraint(Sketcher.Constraint("Vertical", 13, 3, 16, 3))
sketch4.addConstraint(Sketcher.Constraint("Vertical", 16, 3, 17, 3))
sketch4.addConstraint(Sketcher.Constraint("Diameter", 0, 3.0))
sketch4.addConstraint(Sketcher.Constraint("DistanceX", 1, 3, 0, 3, 60.0))
sketch4.addConstraint(Sketcher.Constraint("DistanceY", 2, 3, 0, 3, 56.0))
sketch4.addConstraint(Sketcher.Constraint("DistanceY", 3, 3, 2, 3, 56.0))
sketch4.addConstraint(Sketcher.Constraint("DistanceY", 12, 3, 14, 3, 56.0))
sketch4.addConstraint(Sketcher.Constraint("DistanceY", 14, 3, 15, 3, 56.0))
sketch4.addConstraint(Sketcher.Constraint("DistanceX", -1, 1, 0, 3, 67.9))
sketch4.addConstraint(Sketcher.Constraint("DistanceY", -1, 1, 0, 3, 247.7))
sketch4.addConstraint(Sketcher.Constraint("DistanceY", -1, 1, 12, 3, 7.9))
pocket2 = doc.addObject("PartDesign::Pocket", "Pocket001")
body.addObject(pocket2)
pocket2.Profile = sketch4
pocket2.Type = "ThroughAll"

doc.recompute()
